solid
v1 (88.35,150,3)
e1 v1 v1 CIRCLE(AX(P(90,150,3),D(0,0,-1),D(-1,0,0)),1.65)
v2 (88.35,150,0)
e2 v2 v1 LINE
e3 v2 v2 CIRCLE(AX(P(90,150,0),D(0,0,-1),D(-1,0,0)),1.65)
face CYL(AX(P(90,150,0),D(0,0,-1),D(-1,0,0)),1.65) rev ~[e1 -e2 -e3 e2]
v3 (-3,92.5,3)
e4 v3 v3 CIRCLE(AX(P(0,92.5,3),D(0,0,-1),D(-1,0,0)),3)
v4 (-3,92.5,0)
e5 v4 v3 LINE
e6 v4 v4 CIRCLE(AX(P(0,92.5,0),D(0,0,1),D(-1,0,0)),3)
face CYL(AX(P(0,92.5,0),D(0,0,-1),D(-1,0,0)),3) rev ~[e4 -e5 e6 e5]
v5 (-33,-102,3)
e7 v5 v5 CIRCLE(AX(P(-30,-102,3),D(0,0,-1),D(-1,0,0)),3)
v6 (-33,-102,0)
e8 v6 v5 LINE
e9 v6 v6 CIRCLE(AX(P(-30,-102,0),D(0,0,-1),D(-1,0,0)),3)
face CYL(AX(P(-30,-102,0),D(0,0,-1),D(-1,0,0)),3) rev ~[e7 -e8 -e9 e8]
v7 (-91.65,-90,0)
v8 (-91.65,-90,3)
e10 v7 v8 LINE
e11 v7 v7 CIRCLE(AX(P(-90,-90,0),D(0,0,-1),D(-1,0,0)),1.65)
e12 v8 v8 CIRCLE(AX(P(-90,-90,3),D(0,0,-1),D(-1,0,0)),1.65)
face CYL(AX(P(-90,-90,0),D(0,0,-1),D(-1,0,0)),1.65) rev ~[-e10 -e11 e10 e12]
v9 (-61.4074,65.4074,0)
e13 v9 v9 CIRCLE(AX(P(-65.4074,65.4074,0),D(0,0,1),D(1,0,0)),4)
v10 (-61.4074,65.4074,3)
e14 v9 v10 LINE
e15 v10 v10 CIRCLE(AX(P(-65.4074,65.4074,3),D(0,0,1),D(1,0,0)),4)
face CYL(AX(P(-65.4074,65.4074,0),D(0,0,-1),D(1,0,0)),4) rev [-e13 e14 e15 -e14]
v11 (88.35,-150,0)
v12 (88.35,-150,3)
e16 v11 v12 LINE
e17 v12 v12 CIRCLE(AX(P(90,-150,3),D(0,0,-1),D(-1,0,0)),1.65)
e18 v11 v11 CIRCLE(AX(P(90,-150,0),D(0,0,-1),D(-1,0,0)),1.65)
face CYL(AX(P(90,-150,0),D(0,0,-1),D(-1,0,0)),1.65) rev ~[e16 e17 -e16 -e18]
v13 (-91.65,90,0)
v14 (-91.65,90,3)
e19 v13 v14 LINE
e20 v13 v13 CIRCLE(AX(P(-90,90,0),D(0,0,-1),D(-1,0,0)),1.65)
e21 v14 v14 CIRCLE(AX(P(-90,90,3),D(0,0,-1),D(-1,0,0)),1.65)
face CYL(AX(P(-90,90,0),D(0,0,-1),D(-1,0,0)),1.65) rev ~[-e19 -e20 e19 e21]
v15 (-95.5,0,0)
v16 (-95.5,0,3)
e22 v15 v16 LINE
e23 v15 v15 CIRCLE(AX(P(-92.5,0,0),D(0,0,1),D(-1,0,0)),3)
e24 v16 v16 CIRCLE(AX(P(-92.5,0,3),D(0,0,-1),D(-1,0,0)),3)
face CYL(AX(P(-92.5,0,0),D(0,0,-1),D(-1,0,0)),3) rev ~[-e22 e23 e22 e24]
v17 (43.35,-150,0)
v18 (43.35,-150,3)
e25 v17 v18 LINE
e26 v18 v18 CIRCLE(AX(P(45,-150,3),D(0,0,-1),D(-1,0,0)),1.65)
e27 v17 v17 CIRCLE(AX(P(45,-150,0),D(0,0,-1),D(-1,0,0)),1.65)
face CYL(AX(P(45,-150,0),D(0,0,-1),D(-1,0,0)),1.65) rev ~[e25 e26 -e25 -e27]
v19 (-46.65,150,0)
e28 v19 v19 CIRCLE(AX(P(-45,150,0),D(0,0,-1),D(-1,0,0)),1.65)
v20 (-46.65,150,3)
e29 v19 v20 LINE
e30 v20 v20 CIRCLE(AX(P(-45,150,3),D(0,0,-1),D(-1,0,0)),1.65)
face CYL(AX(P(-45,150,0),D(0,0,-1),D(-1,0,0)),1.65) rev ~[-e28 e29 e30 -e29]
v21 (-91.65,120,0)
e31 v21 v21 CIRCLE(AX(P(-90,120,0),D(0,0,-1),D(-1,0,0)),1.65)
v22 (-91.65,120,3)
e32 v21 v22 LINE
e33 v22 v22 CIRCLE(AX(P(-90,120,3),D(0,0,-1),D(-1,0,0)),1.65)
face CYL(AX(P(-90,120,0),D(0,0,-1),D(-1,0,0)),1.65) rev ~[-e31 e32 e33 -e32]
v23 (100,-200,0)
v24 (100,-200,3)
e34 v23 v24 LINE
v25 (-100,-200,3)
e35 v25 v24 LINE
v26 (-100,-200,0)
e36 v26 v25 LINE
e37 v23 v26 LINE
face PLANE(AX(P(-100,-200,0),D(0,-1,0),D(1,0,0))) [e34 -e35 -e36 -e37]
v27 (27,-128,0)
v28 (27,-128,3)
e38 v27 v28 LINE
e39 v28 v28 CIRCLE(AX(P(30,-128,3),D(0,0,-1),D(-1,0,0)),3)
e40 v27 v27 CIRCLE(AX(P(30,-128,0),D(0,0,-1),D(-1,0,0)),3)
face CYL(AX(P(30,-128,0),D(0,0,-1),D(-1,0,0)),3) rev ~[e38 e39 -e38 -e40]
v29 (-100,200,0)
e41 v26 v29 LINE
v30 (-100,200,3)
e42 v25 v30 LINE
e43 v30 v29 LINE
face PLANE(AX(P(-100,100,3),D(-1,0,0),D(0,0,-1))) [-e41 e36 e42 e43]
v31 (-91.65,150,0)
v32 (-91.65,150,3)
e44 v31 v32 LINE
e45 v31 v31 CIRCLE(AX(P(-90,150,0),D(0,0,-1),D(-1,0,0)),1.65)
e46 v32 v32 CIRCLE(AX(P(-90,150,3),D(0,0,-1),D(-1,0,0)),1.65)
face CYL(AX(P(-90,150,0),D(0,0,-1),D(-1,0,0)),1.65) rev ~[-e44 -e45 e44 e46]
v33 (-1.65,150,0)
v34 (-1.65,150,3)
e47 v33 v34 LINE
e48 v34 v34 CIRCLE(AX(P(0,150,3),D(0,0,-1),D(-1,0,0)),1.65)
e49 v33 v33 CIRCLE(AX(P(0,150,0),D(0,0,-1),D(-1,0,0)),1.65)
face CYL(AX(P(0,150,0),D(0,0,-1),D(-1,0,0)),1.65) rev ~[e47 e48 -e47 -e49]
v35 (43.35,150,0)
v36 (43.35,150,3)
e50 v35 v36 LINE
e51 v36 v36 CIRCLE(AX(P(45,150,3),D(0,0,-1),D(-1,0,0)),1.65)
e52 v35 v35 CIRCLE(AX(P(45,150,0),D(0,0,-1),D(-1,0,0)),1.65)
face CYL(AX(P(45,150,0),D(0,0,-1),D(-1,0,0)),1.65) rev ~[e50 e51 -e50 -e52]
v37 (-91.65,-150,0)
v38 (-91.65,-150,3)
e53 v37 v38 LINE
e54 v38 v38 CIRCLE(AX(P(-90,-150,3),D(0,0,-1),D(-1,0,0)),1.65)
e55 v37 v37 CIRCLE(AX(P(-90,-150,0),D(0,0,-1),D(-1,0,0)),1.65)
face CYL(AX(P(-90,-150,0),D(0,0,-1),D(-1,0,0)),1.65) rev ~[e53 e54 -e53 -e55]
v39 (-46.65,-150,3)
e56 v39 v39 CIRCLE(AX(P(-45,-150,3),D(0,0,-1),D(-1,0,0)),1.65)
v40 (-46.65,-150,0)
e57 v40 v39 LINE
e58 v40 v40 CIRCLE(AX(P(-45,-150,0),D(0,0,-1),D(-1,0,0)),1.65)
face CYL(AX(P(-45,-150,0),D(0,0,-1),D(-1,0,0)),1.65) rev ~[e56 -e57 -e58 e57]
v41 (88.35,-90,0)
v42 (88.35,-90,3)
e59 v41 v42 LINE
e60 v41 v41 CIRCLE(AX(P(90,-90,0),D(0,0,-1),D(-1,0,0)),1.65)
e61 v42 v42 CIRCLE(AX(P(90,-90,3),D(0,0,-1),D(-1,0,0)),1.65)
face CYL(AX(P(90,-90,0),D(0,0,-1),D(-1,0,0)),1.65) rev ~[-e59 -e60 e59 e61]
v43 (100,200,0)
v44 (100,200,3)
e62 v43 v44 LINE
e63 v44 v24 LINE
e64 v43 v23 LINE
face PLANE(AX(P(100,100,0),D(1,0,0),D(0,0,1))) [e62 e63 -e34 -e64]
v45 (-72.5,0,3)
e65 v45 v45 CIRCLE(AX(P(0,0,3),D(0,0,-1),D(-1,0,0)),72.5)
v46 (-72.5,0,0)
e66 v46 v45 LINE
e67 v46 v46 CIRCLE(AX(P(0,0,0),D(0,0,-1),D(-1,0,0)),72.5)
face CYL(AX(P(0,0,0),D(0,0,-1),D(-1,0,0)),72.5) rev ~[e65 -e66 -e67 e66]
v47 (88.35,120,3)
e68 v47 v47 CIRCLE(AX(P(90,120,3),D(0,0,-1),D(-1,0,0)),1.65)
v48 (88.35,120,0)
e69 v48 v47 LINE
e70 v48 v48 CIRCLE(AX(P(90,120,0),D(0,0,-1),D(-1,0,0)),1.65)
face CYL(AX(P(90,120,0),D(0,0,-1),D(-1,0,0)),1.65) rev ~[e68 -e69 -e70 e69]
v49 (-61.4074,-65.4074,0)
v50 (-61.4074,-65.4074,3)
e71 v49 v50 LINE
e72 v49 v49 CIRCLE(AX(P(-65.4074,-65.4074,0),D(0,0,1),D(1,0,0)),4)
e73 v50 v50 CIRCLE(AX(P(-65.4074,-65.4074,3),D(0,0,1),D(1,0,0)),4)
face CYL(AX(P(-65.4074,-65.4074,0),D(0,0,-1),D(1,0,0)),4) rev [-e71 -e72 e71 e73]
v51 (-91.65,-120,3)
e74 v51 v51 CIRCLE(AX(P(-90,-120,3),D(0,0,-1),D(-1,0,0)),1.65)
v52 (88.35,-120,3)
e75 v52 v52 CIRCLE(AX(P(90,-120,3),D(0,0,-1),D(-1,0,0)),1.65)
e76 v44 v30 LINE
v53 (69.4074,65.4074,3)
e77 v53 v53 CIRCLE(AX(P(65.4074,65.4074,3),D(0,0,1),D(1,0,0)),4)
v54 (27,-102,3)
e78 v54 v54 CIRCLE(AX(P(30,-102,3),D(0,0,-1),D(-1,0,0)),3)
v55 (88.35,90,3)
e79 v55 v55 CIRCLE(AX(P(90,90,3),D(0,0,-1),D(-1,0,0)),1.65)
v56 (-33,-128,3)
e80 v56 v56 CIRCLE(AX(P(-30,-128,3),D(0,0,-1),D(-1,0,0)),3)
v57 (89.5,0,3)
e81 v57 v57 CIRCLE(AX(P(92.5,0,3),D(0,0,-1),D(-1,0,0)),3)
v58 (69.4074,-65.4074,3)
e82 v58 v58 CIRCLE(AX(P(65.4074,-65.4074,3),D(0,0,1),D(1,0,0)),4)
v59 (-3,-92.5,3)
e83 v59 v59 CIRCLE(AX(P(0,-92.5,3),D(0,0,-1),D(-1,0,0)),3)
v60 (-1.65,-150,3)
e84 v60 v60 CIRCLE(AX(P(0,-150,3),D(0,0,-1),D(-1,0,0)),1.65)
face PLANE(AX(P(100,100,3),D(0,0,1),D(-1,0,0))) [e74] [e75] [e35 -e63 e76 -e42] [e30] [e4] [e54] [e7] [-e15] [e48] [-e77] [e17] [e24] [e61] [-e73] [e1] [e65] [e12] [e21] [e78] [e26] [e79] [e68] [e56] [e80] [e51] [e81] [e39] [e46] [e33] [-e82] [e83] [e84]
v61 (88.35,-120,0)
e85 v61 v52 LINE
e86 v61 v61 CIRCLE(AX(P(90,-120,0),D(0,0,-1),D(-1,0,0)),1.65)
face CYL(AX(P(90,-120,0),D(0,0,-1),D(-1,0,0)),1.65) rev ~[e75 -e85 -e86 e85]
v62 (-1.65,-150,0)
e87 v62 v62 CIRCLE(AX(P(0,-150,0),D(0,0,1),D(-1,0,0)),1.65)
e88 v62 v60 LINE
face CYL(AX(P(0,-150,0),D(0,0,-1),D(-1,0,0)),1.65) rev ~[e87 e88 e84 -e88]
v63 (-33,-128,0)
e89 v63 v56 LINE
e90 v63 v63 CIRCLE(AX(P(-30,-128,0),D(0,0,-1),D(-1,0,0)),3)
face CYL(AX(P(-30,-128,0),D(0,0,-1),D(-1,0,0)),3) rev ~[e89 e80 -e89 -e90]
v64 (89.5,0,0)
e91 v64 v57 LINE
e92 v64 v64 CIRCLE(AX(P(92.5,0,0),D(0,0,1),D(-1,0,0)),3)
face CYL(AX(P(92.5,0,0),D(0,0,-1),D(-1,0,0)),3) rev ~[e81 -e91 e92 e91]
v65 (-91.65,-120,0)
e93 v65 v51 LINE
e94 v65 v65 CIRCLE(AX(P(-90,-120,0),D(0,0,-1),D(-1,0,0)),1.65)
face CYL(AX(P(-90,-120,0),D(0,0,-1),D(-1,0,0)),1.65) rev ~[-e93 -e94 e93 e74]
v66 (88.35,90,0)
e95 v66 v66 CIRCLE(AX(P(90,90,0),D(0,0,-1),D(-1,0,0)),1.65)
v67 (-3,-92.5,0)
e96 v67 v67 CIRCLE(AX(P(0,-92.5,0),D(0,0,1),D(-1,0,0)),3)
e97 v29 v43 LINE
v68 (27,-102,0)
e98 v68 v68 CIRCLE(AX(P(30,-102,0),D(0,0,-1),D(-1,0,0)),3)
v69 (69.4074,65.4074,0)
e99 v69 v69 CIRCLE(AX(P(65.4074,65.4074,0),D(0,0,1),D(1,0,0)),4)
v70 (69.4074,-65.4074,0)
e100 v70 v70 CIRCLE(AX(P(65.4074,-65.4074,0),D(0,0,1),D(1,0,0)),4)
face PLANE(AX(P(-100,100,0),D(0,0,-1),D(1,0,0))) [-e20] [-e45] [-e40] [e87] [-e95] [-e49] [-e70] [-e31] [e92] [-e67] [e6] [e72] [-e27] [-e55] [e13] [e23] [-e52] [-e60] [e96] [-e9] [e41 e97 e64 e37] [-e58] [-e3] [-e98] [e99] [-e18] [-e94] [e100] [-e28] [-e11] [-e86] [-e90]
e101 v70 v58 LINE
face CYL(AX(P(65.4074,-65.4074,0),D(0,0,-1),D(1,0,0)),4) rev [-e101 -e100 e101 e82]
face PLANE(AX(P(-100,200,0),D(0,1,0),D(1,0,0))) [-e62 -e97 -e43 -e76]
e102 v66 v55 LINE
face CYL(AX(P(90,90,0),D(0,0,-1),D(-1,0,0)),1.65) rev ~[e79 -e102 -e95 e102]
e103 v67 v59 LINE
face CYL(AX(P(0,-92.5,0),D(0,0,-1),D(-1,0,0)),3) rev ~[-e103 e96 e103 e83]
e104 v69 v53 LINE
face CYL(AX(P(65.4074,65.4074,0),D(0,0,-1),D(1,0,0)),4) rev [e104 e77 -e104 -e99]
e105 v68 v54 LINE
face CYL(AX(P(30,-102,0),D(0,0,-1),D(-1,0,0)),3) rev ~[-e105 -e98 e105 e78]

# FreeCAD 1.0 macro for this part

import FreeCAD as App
import Part
import Sketcher
from FreeCAD import Vector
Q = App.Units.Quantity


def add_polygon(sketch, points):
    """Adds a closed chain of lines whose ends are joined by coincident constraints."""
    first, n = sketch.GeometryCount, len(points)
    for a, b in zip(points, points[1:] + points[:1]):
        sketch.addGeometry(Part.LineSegment(App.Vector(*a, 0), App.Vector(*b, 0)), False)
    for i in range(n):
        sketch.addConstraint(Sketcher.Constraint("Coincident", first + i, 2, first + (i + 1) % n, 1))

doc = App.newDocument("Part")
body = doc.addObject("PartDesign::Body", "Body")

sketch1 = doc.addObject("Sketcher::SketchObject", "Sketch")
body.addObject(sketch1)
sketch1.AttachmentSupport = (doc.XY_Plane, [""])
sketch1.MapMode = "FlatFace"
add_polygon(sketch1, [(100, 100), (-100, 100), (-100, -100), (100, -100)])
sketch1.addGeometry(Part.Circle(Vector(-65.4, -65.4, 0), Vector(0, 0, 1), 4), False)
sketch1.addGeometry(Part.Circle(Vector(65.4, -65.4, 0), Vector(0, 0, 1), 4), False)
sketch1.addGeometry(Part.Circle(Vector(-65.4, 65.4, 0), Vector(0, 0, 1), 4), False)
sketch1.addGeometry(Part.Circle(Vector(65.4, 65.4, 0), Vector(0, 0, 1), 4), False)
sketch1.addConstraint(Sketcher.Constraint("Horizontal", 0))
sketch1.addConstraint(Sketcher.Constraint("Vertical", 1))
sketch1.addConstraint(Sketcher.Constraint("Horizontal", 2))
sketch1.addConstraint(Sketcher.Constraint("Vertical", 3))
sketch1.addConstraint(Sketcher.Constraint("Equal", 4, 5))
sketch1.addConstraint(Sketcher.Constraint("Equal", 5, 6))
sketch1.addConstraint(Sketcher.Constraint("Equal", 6, 7))
sketch1.addConstraint(Sketcher.Constraint("Symmetric", 5, 3, 6, 3, -1, 1))
sketch1.addConstraint(Sketcher.Constraint("Symmetric", 4, 3, 7, 3, -1, 1))
sketch1.addConstraint(Sketcher.Constraint("Symmetric", 0, 2, 2, 2, -1, 1))
sketch1.addConstraint(Sketcher.Constraint("Symmetric", 4, 3, 5, 3, -2))
sketch1.addConstraint(Sketcher.Constraint("Equal", 2, 1))
sketch1.addConstraint(Sketcher.Constraint("Diameter", 4, Q("8 mm")))
sketch1.addConstraint(Sketcher.Constraint("DistanceX", 0, 2, 0, 1, Q("200 mm")))
sketch1.addConstraint(Sketcher.Constraint("DistanceX", 4, 3, -1, 1, Q("65.4074 mm")))
sketch1.addConstraint(Sketcher.Constraint("DistanceY", 4, 3, -1, 1, Q("65.4074 mm")))
pad1 = doc.addObject("PartDesign::Pad", "Pad")
body.addObject(pad1)
pad1.Profile = sketch1
pad1.Length = 3

sketch2 = doc.addObject("Sketcher::SketchObject", "Sketch001")
body.addObject(sketch2)
sketch2.AttachmentSupport = (doc.XY_Plane, [""])
sketch2.MapMode = "FlatFace"
sketch2.addGeometry(Part.Circle(Vector(0, 0, 0), Vector(0, 0, 1), 72), False)
sketch2.addConstraint(Sketcher.Constraint("Coincident", 0, 3, -1, 1))
sketch2.addConstraint(Sketcher.Constraint("Diameter", 0, Q("145 mm")))
pocket1 = doc.addObject("PartDesign::Pocket", "Pocket")
body.addObject(pocket1)
pocket1.Profile = sketch2
pocket1.Length = 10
pocket1.Reversed = True

sketch3 = doc.addObject("Sketcher::SketchObject", "Sketch002")
body.addObject(sketch3)
sketch3.AttachmentSupport = (doc.XZ_Plane, [""])
sketch3.MapMode = "FlatFace"
sketch3.AttachmentOffset = App.Placement(Vector(0, 0, 100), App.Rotation())
add_polygon(sketch3, [(-100, 3), (-100, 0), (100, 0), (100, 3)])
sketch3.addConstraint(Sketcher.Constraint("Vertical", 0))
sketch3.addConstraint(Sketcher.Constraint("Horizontal", 1))
sketch3.addConstraint(Sketcher.Constraint("Vertical", 2))
sketch3.addConstraint(Sketcher.Constraint("Horizontal", 3))
sketch3.addConstraint(Sketcher.Constraint("Symmetric", 0, 2, 1, 2, -1, 1))
sketch3.addConstraint(Sketcher.Constraint("DistanceX", 1, 1, 1, 2, Q("200 mm")))
sketch3.addConstraint(Sketcher.Constraint("DistanceY", 0, 2, 0, 1, Q("3 mm")))
pad2 = doc.addObject("PartDesign::Pad", "Pad001")
body.addObject(pad2)
pad2.Profile = sketch3
pad2.Length = 100

sketch4 = doc.addObject("Sketcher::SketchObject", "Sketch003")
body.addObject(sketch4)
sketch4.AttachmentSupport = (doc.XZ_Plane, [""])
sketch4.MapMode = "FlatFace"
sketch4.AttachmentOffset = App.Placement(Vector(0, 0, -100), App.Rotation())
add_polygon(sketch4, [(100, 0), (-100, 0), (-100, 3), (100, 3)])
sketch4.addConstraint(Sketcher.Constraint("Horizontal", 0))
sketch4.addConstraint(Sketcher.Constraint("Vertical", 1))
sketch4.addConstraint(Sketcher.Constraint("Horizontal", 2))
sketch4.addConstraint(Sketcher.Constraint("Vertical", 3))
sketch4.addConstraint(Sketcher.Constraint("Symmetric", 0, 2, 3, 2, -1, 1))
sketch4.addConstraint(Sketcher.Constraint("DistanceX", 0, 2, 0, 1, Q("200 mm")))
sketch4.addConstraint(Sketcher.Constraint("DistanceY", 1, 1, 1, 2, Q("3 mm")))
pad3 = doc.addObject("PartDesign::Pad", "Pad002")
body.addObject(pad3)
pad3.Profile = sketch4
pad3.Length = 100
pad3.Reversed = True

sketch5 = doc.addObject("Sketcher::SketchObject", "Sketch004")
body.addObject(sketch5)
sketch5.AttachmentSupport = (doc.XY_Plane, [""])
sketch5.MapMode = "FlatFace"
sketch5.addGeometry(Part.Circle(Vector(-30, -128, 0), Vector(0, 0, 1), 3), False)
sketch5.addGeometry(Part.Circle(Vector(30, -128, 0), Vector(0, 0, 1), 3), False)
sketch5.addGeometry(Part.Circle(Vector(-30, -102, 0), Vector(0, 0, 1), 3), False)
sketch5.addGeometry(Part.Circle(Vector(30, -102, 0), Vector(0, 0, 1), 3), False)
sketch5.addConstraint(Sketcher.Constraint("Equal", 0, 1))
sketch5.addConstraint(Sketcher.Constraint("Equal", 1, 2))
sketch5.addConstraint(Sketcher.Constraint("Equal", 2, 3))
sketch5.addConstraint(Sketcher.Constraint("Symmetric", 0, 3, 1, 3, -2))
sketch5.addConstraint(Sketcher.Constraint("Symmetric", 2, 3, 3, 3, -2))
sketch5.addConstraint(Sketcher.Constraint("Vertical", 0, 3, 2, 3))
sketch5.addConstraint(Sketcher.Constraint("Diameter", 0, Q("6 mm")))
sketch5.addConstraint(Sketcher.Constraint("DistanceX", 0, 3, -1, 1, Q("30 mm")))
sketch5.addConstraint(Sketcher.Constraint("DistanceY", 0, 3, -1, 1, Q("128 mm")))
sketch5.addConstraint(Sketcher.Constraint("DistanceY", 2, 3, -1, 1, Q("102 mm")))
pocket2 = doc.addObject("PartDesign::Pocket", "Pocket001")
body.addObject(pocket2)
pocket2.Profile = sketch5
pocket2.Length = 10
pocket2.Reversed = True

sketch6 = doc.addObject("Sketcher::SketchObject", "Sketch005")
body.addObject(sketch6)
sketch6.AttachmentSupport = (doc.XY_Plane, [""])
sketch6.MapMode = "FlatFace"
sketch6.addGeometry(Part.Circle(Vector(0, -150, 0), Vector(0, 0, 1), 1.6), False)
sketch6.addGeometry(Part.Circle(Vector(45, -150, 0), Vector(0, 0, 1), 1.6), False)
sketch6.addGeometry(Part.Circle(Vector(90, -150, 0), Vector(0, 0, 1), 1.6), False)
sketch6.addGeometry(Part.Circle(Vector(-45, -150, 0), Vector(0, 0, 1), 1.6), False)
sketch6.addGeometry(Part.Circle(Vector(-90, -150, 0), Vector(0, 0, 1), 1.6), False)
sketch6.addGeometry(Part.Circle(Vector(90, 150, 0), Vector(0, 0, 1), 1.6), False)
sketch6.addGeometry(Part.Circle(Vector(45, 150, 0), Vector(0, 0, 1), 1.6), False)
sketch6.addGeometry(Part.Circle(Vector(0, 150, 0), Vector(0, 0, 1), 1.6), False)
sketch6.addGeometry(Part.Circle(Vector(-45, 150, 0), Vector(0, 0, 1), 1.6), False)
sketch6.addGeometry(Part.Circle(Vector(-90, 150, 0), Vector(0, 0, 1), 1.6), False)
sketch6.addConstraint(Sketcher.Constraint("Equal", 0, 1))
sketch6.addConstraint(Sketcher.Constraint("Equal", 1, 2))
sketch6.addConstraint(Sketcher.Constraint("Equal", 2, 3))
sketch6.addConstraint(Sketcher.Constraint("Equal", 3, 4))
sketch6.addConstraint(Sketcher.Constraint("Equal", 4, 5))
sketch6.addConstraint(Sketcher.Constraint("Equal", 5, 6))
sketch6.addConstraint(Sketcher.Constraint("Equal", 6, 7))
sketch6.addConstraint(Sketcher.Constraint("Equal", 7, 8))
sketch6.addConstraint(Sketcher.Constraint("Equal", 8, 9))
sketch6.addConstraint(Sketcher.Constraint("Symmetric", 4, 3, 5, 3, -1, 1))
sketch6.addConstraint(Sketcher.Constraint("Symmetric", 3, 3, 6, 3, -1, 1))
sketch6.addConstraint(Sketcher.Constraint("Symmetric", 0, 3, 7, 3, -1, 1))
sketch6.addConstraint(Sketcher.Constraint("Symmetric", 1, 3, 8, 3, -1, 1))
sketch6.addConstraint(Sketcher.Constraint("Symmetric", 2, 3, 9, 3, -1, 1))
sketch6.addConstraint(Sketcher.Constraint("Symmetric", 1, 3, 3, 3, -2))
sketch6.addConstraint(Sketcher.Constraint("Symmetric", 2, 3, 4, 3, -2))
sketch6.addConstraint(Sketcher.Constraint("PointOnObject", 0, 3, -2))
sketch6.addConstraint(Sketcher.Constraint("Horizontal", 0, 3, 1, 3))
sketch6.addConstraint(Sketcher.Constraint("Horizontal", 1, 3, 2, 3))
sketch6.addConstraint(Sketcher.Constraint("Diameter", 0, Q("3.3 mm")))
sketch6.addConstraint(Sketcher.Constraint("DistanceY", 0, 3, -1, 1, Q("150 mm")))
sketch6.addConstraint(Sketcher.Constraint("DistanceX", -1, 1, 1, 3, Q("45 mm")))
sketch6.addConstraint(Sketcher.Constraint("DistanceX", -1, 1, 2, 3, Q("90 mm")))
pocket3 = doc.addObject("PartDesign::Pocket", "Pocket002")
body.addObject(pocket3)
pocket3.Profile = sketch6
pocket3.Length = 10
pocket3.Reversed = True

sketch7 = doc.addObject("Sketcher::SketchObject", "Sketch006")
body.addObject(sketch7)
sketch7.AttachmentSupport = (doc.XY_Plane, [""])
sketch7.MapMode = "FlatFace"
sketch7.addGeometry(Part.Circle(Vector(-92.5, 0, 0), Vector(0, 0, 1), 3), False)
sketch7.addGeometry(Part.Circle(Vector(0, 92.5, 0), Vector(0, 0, 1), 3), False)
sketch7.addGeometry(Part.Circle(Vector(0, -92.5, 0), Vector(0, 0, 1), 3), False)
sketch7.addGeometry(Part.Circle(Vector(92.5, 0, 0), Vector(0, 0, 1), 3), False)
sketch7.addConstraint(Sketcher.Constraint("Equal", 0, 1))
sketch7.addConstraint(Sketcher.Constraint("Equal", 1, 2))
sketch7.addConstraint(Sketcher.Constraint("Equal", 2, 3))
sketch7.addConstraint(Sketcher.Constraint("Symmetric", 1, 3, 2, 3, -1, 1))
sketch7.addConstraint(Sketcher.Constraint("Symmetric", 0, 3, 3, 3, -1, 1))
sketch7.addConstraint(Sketcher.Constraint("PointOnObject", 0, 3, -1))
sketch7.addConstraint(Sketcher.Constraint("PointOnObject", 1, 3, -2))
sketch7.addConstraint(Sketcher.Constraint("Diameter", 0, Q("6 mm")))
sketch7.addConstraint(Sketcher.Constraint("DistanceY", 2, 3, 1, 3, Q("185 mm")))
sketch7.addConstraint(Sketcher.Constraint("DistanceX", 0, 3, 3, 3, Q("185 mm")))
pocket4 = doc.addObject("PartDesign::Pocket", "Pocket003")
body.addObject(pocket4)
pocket4.Profile = sketch7
pocket4.Length = 10
pocket4.Reversed = True

sketch8 = doc.addObject("Sketcher::SketchObject", "Sketch007")
body.addObject(sketch8)
sketch8.AttachmentSupport = (doc.XY_Plane, [""])
sketch8.MapMode = "FlatFace"
sketch8.addGeometry(Part.Circle(Vector(90, -90, 0), Vector(0, 0, 1), 1.6), False)
sketch8.addGeometry(Part.Circle(Vector(-90, -90, 0), Vector(0, 0, 1), 1.6), False)
sketch8.addGeometry(Part.Circle(Vector(90, 90, 0), Vector(0, 0, 1), 1.6), False)
sketch8.addGeometry(Part.Circle(Vector(-90, 90, 0), Vector(0, 0, 1), 1.6), False)
sketch8.addGeometry(Part.Circle(Vector(90, -120, 0), Vector(0, 0, 1), 1.6), False)
sketch8.addGeometry(Part.Circle(Vector(-90, -120, 0), Vector(0, 0, 1), 1.6), False)
sketch8.addGeometry(Part.Circle(Vector(90, 120, 0), Vector(0, 0, 1), 1.6), False)
sketch8.addGeometry(Part.Circle(Vector(-90, 120, 0), Vector(0, 0, 1), 1.6), False)
sketch8.addConstraint(Sketcher.Constraint("Equal", 0, 1))
sketch8.addConstraint(Sketcher.Constraint("Equal", 1, 2))
sketch8.addConstraint(Sketcher.Constraint("Equal", 2, 3))
sketch8.addConstraint(Sketcher.Constraint("Equal", 3, 4))
sketch8.addConstraint(Sketcher.Constraint("Equal", 4, 5))
sketch8.addConstraint(Sketcher.Constraint("Equal", 5, 6))
sketch8.addConstraint(Sketcher.Constraint("Equal", 6, 7))
sketch8.addConstraint(Sketcher.Constraint("Symmetric", 1, 3, 2, 3, -1, 1))
sketch8.addConstraint(Sketcher.Constraint("Symmetric", 0, 3, 3, 3, -1, 1))
sketch8.addConstraint(Sketcher.Constraint("Symmetric", 5, 3, 6, 3, -1, 1))
sketch8.addConstraint(Sketcher.Constraint("Symmetric", 4, 3, 7, 3, -1, 1))
sketch8.addConstraint(Sketcher.Constraint("Symmetric", 0, 3, 1, 3, -2))
sketch8.addConstraint(Sketcher.Constraint("Symmetric", 4, 3, 5, 3, -2))
sketch8.addConstraint(Sketcher.Constraint("Vertical", 2, 3, 4, 3))
sketch8.addConstraint(Sketcher.Constraint("Diameter", 0, Q("3.3 mm")))
sketch8.addConstraint(Sketcher.Constraint("DistanceX", -1, 1, 0, 3, Q("90 mm")))
sketch8.addConstraint(Sketcher.Constraint("DistanceY", 0, 3, -1, 1, Q("90 mm")))
sketch8.addConstraint(Sketcher.Constraint("DistanceY", 4, 3, -1, 1, Q("120 mm")))
pocket5 = doc.addObject("PartDesign::Pocket", "Pocket004")
body.addObject(pocket5)
pocket5.Profile = sketch8
pocket5.Length = 10
pocket5.Reversed = True

doc.recompute()
